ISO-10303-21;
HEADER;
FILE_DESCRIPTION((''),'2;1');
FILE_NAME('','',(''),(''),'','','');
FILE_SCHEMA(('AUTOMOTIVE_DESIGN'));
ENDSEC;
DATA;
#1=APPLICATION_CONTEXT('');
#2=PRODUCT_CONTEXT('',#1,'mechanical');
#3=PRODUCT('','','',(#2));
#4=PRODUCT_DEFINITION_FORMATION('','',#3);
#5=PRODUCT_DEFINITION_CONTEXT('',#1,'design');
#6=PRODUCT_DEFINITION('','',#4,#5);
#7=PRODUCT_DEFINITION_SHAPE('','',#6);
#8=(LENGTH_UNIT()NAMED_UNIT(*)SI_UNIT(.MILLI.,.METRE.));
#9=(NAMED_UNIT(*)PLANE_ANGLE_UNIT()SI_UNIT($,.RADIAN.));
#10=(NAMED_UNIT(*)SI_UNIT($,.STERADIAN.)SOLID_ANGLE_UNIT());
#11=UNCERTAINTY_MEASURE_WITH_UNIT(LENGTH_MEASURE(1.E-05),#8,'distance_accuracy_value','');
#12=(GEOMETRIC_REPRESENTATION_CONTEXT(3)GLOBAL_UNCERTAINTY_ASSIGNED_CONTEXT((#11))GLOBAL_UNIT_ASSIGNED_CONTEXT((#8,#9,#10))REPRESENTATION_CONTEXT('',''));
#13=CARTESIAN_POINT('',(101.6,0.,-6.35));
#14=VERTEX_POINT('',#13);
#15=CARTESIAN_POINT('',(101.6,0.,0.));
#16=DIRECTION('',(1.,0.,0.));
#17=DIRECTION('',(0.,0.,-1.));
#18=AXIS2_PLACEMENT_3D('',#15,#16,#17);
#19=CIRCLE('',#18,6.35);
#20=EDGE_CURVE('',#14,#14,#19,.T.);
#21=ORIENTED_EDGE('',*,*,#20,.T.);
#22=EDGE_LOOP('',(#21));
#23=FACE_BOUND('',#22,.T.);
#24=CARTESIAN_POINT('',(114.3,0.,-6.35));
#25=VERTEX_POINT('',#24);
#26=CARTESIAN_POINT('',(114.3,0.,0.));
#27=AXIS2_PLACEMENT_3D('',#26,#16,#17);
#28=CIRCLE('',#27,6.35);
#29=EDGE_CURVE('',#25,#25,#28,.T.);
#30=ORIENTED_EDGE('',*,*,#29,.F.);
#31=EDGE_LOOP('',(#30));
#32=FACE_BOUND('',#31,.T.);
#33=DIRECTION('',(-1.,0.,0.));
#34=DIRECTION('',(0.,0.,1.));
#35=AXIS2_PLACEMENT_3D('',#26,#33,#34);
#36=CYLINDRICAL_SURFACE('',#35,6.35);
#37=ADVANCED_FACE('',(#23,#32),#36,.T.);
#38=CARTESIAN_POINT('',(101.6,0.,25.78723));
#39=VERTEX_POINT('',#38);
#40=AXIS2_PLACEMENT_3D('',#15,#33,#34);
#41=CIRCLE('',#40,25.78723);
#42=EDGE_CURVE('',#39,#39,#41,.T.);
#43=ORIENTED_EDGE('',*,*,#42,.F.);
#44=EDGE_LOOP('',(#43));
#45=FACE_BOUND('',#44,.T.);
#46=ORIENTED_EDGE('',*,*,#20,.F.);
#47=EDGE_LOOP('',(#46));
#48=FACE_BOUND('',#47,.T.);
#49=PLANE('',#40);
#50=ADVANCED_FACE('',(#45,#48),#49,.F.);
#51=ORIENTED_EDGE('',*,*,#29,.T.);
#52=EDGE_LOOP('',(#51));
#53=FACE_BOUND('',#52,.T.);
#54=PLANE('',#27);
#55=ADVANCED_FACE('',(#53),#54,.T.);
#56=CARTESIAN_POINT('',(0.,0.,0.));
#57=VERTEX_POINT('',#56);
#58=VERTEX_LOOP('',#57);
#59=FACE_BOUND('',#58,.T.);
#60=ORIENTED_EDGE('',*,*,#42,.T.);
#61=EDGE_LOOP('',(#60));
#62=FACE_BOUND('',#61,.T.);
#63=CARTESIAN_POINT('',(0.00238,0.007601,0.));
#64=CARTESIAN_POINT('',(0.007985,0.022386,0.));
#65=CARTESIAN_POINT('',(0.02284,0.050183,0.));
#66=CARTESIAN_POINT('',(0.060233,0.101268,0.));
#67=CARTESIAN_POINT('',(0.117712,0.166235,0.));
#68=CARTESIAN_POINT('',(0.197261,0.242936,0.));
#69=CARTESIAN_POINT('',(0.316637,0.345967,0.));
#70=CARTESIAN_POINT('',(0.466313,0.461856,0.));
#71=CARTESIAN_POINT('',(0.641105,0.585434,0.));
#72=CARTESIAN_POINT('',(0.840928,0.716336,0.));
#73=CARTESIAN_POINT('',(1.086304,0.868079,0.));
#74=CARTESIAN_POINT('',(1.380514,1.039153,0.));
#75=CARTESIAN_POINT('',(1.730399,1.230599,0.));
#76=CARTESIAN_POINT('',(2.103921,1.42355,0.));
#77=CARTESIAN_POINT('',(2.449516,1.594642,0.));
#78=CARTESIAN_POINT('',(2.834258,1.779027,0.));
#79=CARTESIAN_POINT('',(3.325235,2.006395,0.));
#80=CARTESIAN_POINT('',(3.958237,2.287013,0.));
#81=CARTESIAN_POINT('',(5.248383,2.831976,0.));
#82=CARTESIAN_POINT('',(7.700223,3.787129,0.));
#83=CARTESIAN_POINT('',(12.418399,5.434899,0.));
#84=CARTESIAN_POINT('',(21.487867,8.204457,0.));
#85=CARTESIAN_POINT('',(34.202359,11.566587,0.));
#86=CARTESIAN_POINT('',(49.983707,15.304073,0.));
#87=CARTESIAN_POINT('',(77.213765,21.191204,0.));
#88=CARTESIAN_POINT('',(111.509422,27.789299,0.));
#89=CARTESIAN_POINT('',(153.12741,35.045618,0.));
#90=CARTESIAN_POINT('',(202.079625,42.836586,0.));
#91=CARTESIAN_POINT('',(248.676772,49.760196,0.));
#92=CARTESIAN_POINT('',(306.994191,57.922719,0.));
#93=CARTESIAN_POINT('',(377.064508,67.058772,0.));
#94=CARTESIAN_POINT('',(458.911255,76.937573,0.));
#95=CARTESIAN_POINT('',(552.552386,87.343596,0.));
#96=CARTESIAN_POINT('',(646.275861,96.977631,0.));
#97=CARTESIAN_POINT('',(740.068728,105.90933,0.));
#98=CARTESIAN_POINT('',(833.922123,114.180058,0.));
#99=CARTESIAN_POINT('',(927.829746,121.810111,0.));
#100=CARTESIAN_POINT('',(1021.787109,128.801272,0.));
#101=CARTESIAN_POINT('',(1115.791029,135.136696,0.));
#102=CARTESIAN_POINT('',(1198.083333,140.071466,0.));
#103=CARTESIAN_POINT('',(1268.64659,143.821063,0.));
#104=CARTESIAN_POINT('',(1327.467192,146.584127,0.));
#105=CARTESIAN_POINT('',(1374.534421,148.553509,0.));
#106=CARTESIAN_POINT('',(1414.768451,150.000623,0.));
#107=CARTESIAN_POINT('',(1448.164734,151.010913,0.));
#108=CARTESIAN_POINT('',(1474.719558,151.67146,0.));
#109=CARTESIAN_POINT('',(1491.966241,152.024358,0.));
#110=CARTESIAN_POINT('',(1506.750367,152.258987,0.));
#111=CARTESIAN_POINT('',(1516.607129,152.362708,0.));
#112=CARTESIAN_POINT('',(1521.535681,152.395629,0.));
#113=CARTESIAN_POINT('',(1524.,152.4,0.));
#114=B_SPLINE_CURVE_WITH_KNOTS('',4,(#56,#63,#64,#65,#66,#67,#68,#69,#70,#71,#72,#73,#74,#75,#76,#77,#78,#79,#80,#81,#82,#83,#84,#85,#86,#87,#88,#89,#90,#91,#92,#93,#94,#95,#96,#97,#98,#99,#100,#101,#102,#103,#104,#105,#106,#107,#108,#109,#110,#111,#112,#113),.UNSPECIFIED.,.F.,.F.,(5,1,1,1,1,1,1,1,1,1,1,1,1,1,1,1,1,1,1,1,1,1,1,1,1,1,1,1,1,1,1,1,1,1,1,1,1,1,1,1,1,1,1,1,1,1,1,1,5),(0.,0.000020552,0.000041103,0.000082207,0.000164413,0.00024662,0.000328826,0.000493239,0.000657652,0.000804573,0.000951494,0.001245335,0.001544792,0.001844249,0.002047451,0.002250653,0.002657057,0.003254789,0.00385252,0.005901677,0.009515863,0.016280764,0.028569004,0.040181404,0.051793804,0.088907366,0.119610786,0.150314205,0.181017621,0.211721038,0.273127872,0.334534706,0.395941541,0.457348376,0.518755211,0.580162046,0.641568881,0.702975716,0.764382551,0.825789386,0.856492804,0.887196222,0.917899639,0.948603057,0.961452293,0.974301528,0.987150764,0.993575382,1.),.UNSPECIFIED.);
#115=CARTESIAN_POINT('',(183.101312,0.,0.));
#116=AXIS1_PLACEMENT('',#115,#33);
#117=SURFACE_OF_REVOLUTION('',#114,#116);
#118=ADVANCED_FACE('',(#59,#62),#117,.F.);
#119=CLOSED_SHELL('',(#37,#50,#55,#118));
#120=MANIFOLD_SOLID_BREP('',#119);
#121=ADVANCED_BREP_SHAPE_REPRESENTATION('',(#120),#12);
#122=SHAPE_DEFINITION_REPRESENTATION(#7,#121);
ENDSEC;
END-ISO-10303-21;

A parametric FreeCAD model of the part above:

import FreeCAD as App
import Part
import Sketcher

V = App.Vector
Q = App.Units.Quantity

doc = App.newDocument("Part")
body = doc.addObject("PartDesign::Body", "Body")

# Sketch on XY plane
sketch1 = body.newObject("Sketcher::SketchObject", "Sketch")
sketch1.AttachmentSupport = (doc.getObject("XY_Plane"), [""])
sketch1.MapMode = "FlatFace"
sketch1.addGeometry(Part.BSplineCurve([V(0, 0, 0), V(0.00238, 0.007601, 0), V(0.007985, 0.022386, 0), V(0.02284, 0.050183, 0), V(0.060233, 0.101268, 0), V(0.117712, 0.166235, 0), V(0.197261, 0.242936, 0), V(0.316637, 0.345967, 0), V(0.466313, 0.461856, 0), V(0.641105, 0.585434, 0), V(0.840928, 0.716336, 0), V(1.086304, 0.868079, 0), V(1.380514, 1.039153, 0), V(1.730399, 1.230599, 0), V(2.103921, 1.42355, 0), V(2.449516, 1.594642, 0), V(2.834258, 1.779027, 0), V(3.325235, 2.006395, 0), V(3.958237, 2.287013, 0), V(5.248383, 2.831976, 0), V(7.700223, 3.787129, 0), V(12.418399, 5.434899, 0), V(21.487867, 8.204457, 0), V(34.202359, 11.566587, 0), V(49.983707, 15.304073, 0), V(69.575753, 19.539868, 0), V(84.6074, 22.552252, 0), V(95.288419, 24.602753, 0), V(101.6, 25.78723, 0)], [5, 1, 1, 1, 1, 1, 1, 1, 1, 1, 1, 1, 1, 1, 1, 1, 1, 1, 1, 1, 1, 1, 1, 1, 1, 5], [0, 0.000020552, 0.000041103, 0.000082207, 0.000164413, 0.00024662, 0.000328826, 0.000493239, 0.000657652, 0.000804573, 0.000951494, 0.001245335, 0.001544792, 0.001844249, 0.002047451, 0.002250653, 0.002657057, 0.003254789, 0.00385252, 0.005901677, 0.009515863, 0.016280764, 0.028569004, 0.040181404, 0.051793804, 0.068535654], False, 4, [1, 1, 1, 1, 1, 1, 1, 1, 1, 1, 1, 1, 1, 1, 1, 1, 1, 1, 1, 1, 1, 1, 1, 1, 1, 1, 1, 1, 1], False), False)
sketch1.addGeometry(Part.LineSegment(V(0, 0, 0), V(101.6, 0, 0)), False)
sketch1.addGeometry(Part.LineSegment(V(101.6, 0, 0), V(101.6, 25.78723, 0)), False)
sketch1.addConstraint(Sketcher.Constraint("Block", 0))
sketch1.addConstraint(Sketcher.Constraint("Coincident", 0, 1, 1, 1))
sketch1.addConstraint(Sketcher.Constraint("Coincident", 1, 2, 2, 1))
sketch1.addConstraint(Sketcher.Constraint("Coincident", 2, 2, 0, 2))
sketch1.addConstraint(Sketcher.Constraint("Horizontal", 1))
sketch1.addConstraint(Sketcher.Constraint("Vertical", 2))
revolution = body.newObject("PartDesign::Revolution", "Revolution")
revolution.Profile = sketch1
revolution.ReferenceAxis = (sketch1, ["H_Axis"])
revolution.Angle = 360

# Sketch on YZ plane
sketch2 = body.newObject("Sketcher::SketchObject", "Sketch001")
sketch2.AttachmentSupport = (doc.getObject("YZ_Plane"), [""])
sketch2.MapMode = "FlatFace"
sketch2.AttachmentOffset = App.Placement(V(0, 0, 4 * 25.4), App.Rotation())
sketch2.addGeometry(Part.Circle(V(0, 0, 0), V(0, 0, 1), 6), False)
sketch2.addConstraint(Sketcher.Constraint("Coincident", 0, 3, -1, 1))
sketch2.addConstraint(Sketcher.Constraint("Diameter", 0, Q("0.5 in")))
pad1 = body.newObject("PartDesign::Pad", "Pad")
pad1.Profile = sketch2
pad1.Length = Q("0.5 in")

doc.recompute()
